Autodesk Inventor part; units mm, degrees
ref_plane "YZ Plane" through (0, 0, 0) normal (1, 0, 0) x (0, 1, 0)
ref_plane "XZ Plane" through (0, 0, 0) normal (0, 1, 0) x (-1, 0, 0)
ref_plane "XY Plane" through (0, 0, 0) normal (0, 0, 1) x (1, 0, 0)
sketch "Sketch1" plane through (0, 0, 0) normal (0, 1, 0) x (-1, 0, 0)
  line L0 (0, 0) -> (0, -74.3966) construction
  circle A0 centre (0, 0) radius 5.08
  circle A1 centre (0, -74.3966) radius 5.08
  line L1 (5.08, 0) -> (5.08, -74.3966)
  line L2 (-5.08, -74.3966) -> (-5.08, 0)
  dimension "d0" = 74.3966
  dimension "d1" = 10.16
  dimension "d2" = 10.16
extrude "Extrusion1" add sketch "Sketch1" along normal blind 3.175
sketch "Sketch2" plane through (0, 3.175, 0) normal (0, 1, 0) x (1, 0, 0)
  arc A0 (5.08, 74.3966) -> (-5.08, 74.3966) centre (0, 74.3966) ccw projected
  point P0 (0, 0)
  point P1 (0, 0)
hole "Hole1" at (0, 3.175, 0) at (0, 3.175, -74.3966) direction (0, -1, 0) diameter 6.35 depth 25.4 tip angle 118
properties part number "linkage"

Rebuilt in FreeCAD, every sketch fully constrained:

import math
import FreeCAD as App
import Part
import Sketcher
Q = App.Units.Quantity

doc = App.newDocument("Part")
body = doc.addObject("PartDesign::Body", "Body")

sketch1 = body.newObject("Sketcher::SketchObject", "Sketch")
sketch1.AttachmentSupport = (doc.getObject("XZ_Plane"), [""])
sketch1.MapMode = "FlatFace"
sketch1.addGeometry(Part.ArcOfCircle(Part.Circle(App.Vector(0, 0, 0), App.Vector(0, 0, 1), 5.08), math.radians(0), math.radians(180)), False)
sketch1.addGeometry(Part.LineSegment(App.Vector(5.08, 0, 0), App.Vector(5.08, -74.3966, 0)), False)
sketch1.addGeometry(Part.ArcOfCircle(Part.Circle(App.Vector(0, -74.3966, 0), App.Vector(0, 0, 1), 5.08), math.radians(180), math.radians(360)), False)
sketch1.addGeometry(Part.LineSegment(App.Vector(-5.08, -74.3966, 0), App.Vector(-5.08, 0, 0)), False)
sketch1.addConstraint(Sketcher.Constraint("Tangent", 0, 1, 1, 1))
sketch1.addConstraint(Sketcher.Constraint("Tangent", 1, 2, 2, 2))
sketch1.addConstraint(Sketcher.Constraint("Tangent", 2, 1, 3, 1))
sketch1.addConstraint(Sketcher.Constraint("Tangent", 3, 2, 0, 2))
sketch1.addConstraint(Sketcher.Constraint("Vertical", 1))
sketch1.addConstraint(Sketcher.Constraint("Vertical", 3))
sketch1.addConstraint(Sketcher.Constraint("Coincident", 0, 3, -1, 1))
sketch1.addConstraint(Sketcher.Constraint("Radius", 0, Q("0.2 in")))
sketch1.addConstraint(Sketcher.Constraint("DistanceY", 1, 2, 1, 1, Q("2.929 in")))
pad1 = body.newObject("PartDesign::Pad", "Pad")
pad1.Profile = sketch1
pad1.Length = Q("0.125 in")
pad1.Reversed = True

sketch2 = body.newObject("Sketcher::SketchObject", "Sketch001")
sketch2.AttachmentSupport = (doc.getObject("XZ_Plane"), [""])
sketch2.MapMode = "FlatFace"
sketch2.AttachmentOffset = App.Placement(App.Vector(0, 0, -0.125 * 25.4), App.Rotation())
sketch2.addGeometry(Part.Circle(App.Vector(0, 0, 0), App.Vector(0, 0, 1), 3.175), False)
sketch2.addGeometry(Part.Circle(App.Vector(0, -74.3966, 0), App.Vector(0, 0, 1), 3.175), False)
sketch2.addConstraint(Sketcher.Constraint("Coincident", 0, 3, -1, 1))
sketch2.addConstraint(Sketcher.Constraint("Equal", 0, 1))
sketch2.addConstraint(Sketcher.Constraint("PointOnObject", 1, 3, -2))
sketch2.addConstraint(Sketcher.Constraint("Diameter", 0, Q("0.25 in")))
sketch2.addConstraint(Sketcher.Constraint("DistanceY", 1, 3, -1, 1, Q("2.929 in")))
doc.recompute()
hole = body.newObject("PartDesign::Hole", "Hole")
hole.Profile = sketch2
hole.ThreadType = "None"
hole.Diameter = Q("0.25 in")
hole.DepthType = "Dimension"
hole.Depth = Q("1 in")
hole.DrillPoint = "Angled"
hole.DrillPointAngle = 118
hole.Reversed = True

doc.recompute()
